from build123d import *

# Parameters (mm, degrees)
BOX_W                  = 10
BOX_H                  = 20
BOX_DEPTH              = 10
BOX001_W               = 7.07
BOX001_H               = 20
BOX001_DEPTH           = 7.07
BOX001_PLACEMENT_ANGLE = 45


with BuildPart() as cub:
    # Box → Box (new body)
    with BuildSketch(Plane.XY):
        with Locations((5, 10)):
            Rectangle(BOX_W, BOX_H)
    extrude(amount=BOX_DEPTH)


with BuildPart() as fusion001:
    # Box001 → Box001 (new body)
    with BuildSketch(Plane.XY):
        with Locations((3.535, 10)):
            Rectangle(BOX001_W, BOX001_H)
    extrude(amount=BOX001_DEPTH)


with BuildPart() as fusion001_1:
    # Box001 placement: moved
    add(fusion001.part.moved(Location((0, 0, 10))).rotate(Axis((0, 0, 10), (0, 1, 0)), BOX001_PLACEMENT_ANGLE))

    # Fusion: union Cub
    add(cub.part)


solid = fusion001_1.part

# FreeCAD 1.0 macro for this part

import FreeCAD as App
import Part
import Sketcher

V = App.Vector
Q = App.Units.Quantity


def add_polygon(sketch, points):
    """Adds a closed chain of lines whose ends are joined by coincident constraints."""
    first, n = sketch.GeometryCount, len(points)
    for a, b in zip(points, points[1:] + points[:1]):
        sketch.addGeometry(Part.LineSegment(App.Vector(*a, 0), App.Vector(*b, 0)), False)
    for i in range(n):
        sketch.addConstraint(Sketcher.Constraint("Coincident", first + i, 2, first + (i + 1) % n, 1))

doc = App.newDocument("Part")
params = doc.addObject("Spreadsheet::Sheet", "Params")
for row, (alias, value) in enumerate([
    ("sketch1_width", "10 mm"),
    ("sketch1_height", "20 mm"),
    ("pad1_length", "10 mm"),
    ("sketch2_height", "20 mm"),
    ("sketch2_width", "7.07 mm"),
    ("pad2_length", "7.07 mm"),
], start=1):
    params.set(f"A{row}", alias)
    params.set(f"B{row}", "=" + value)
    params.setAlias(f"B{row}", alias)

body = doc.addObject("PartDesign::Body", "Body")

sketch1 = body.newObject("Sketcher::SketchObject", "Sketch")
sketch1.AttachmentSupport = (doc.getObject("XY_Plane"), [""])
sketch1.MapMode = "FlatFace"
add_polygon(sketch1, [(0, 20), (0, 0), (10, 0), (10, 20)])
sketch1.addConstraint([
    Sketcher.Constraint("Vertical", 0),
    Sketcher.Constraint("Horizontal", 1),
    Sketcher.Constraint("Vertical", 2),
    Sketcher.Constraint("Horizontal", 3),
    Sketcher.Constraint("Coincident", 0, 2, -1, 1),
    Sketcher.Constraint("DistanceX", 1, 1, 1, 2, Q("10 mm")),
    Sketcher.Constraint("DistanceY", 0, 2, 0, 1, Q("20 mm")),
])
sketch1.setExpression("Constraints[9]", "Params.sketch1_width")
sketch1.setExpression("Constraints[10]", "Params.sketch1_height")
pad1 = body.newObject("PartDesign::Pad", "Pad")
pad1.Profile = sketch1
pad1.setExpression("Length", "Params.pad1_length")
body2 = doc.addObject("PartDesign::Body", "Body001")

sketch2 = body2.newObject("Sketcher::SketchObject", "Sketch001")
sketch2.AttachmentSupport = (doc.getObject("XY_Plane001"), [""])
sketch2.MapMode = "FlatFace"
add_polygon(sketch2, [(0, 20), (0, 0), (7, 0), (7, 20)])
sketch2.addConstraint([
    Sketcher.Constraint("Vertical", 0),
    Sketcher.Constraint("Horizontal", 1),
    Sketcher.Constraint("Vertical", 2),
    Sketcher.Constraint("Horizontal", 3),
    Sketcher.Constraint("Coincident", 0, 2, -1, 1),
    Sketcher.Constraint("DistanceY", 0, 2, 0, 1, Q("20 mm")),
    Sketcher.Constraint("DistanceX", 1, 1, 1, 2, Q("7.07 mm")),
])
sketch2.setExpression("Constraints[9]", "Params.sketch2_height")
sketch2.setExpression("Constraints[10]", "Params.sketch2_width")
pad2 = body2.newObject("PartDesign::Pad", "Pad001")
pad2.Profile = sketch2
pad2.setExpression("Length", "Params.pad2_length")
body3 = doc.addObject("PartDesign::Body", "Body002")
doc.recompute()

body2.Placement = App.Placement(V(0, 0, 10), App.Rotation(V(0, 1, 0), 45))
boolean = body3.newObject("PartDesign::Boolean", "Boolean")
boolean.Type = "Fuse"
boolean.addObjects([body2])
doc.recompute()

boolean2 = body3.newObject("PartDesign::Boolean", "Boolean001")
boolean2.Type = "Fuse"
boolean2.addObjects([body])

doc.recompute()
